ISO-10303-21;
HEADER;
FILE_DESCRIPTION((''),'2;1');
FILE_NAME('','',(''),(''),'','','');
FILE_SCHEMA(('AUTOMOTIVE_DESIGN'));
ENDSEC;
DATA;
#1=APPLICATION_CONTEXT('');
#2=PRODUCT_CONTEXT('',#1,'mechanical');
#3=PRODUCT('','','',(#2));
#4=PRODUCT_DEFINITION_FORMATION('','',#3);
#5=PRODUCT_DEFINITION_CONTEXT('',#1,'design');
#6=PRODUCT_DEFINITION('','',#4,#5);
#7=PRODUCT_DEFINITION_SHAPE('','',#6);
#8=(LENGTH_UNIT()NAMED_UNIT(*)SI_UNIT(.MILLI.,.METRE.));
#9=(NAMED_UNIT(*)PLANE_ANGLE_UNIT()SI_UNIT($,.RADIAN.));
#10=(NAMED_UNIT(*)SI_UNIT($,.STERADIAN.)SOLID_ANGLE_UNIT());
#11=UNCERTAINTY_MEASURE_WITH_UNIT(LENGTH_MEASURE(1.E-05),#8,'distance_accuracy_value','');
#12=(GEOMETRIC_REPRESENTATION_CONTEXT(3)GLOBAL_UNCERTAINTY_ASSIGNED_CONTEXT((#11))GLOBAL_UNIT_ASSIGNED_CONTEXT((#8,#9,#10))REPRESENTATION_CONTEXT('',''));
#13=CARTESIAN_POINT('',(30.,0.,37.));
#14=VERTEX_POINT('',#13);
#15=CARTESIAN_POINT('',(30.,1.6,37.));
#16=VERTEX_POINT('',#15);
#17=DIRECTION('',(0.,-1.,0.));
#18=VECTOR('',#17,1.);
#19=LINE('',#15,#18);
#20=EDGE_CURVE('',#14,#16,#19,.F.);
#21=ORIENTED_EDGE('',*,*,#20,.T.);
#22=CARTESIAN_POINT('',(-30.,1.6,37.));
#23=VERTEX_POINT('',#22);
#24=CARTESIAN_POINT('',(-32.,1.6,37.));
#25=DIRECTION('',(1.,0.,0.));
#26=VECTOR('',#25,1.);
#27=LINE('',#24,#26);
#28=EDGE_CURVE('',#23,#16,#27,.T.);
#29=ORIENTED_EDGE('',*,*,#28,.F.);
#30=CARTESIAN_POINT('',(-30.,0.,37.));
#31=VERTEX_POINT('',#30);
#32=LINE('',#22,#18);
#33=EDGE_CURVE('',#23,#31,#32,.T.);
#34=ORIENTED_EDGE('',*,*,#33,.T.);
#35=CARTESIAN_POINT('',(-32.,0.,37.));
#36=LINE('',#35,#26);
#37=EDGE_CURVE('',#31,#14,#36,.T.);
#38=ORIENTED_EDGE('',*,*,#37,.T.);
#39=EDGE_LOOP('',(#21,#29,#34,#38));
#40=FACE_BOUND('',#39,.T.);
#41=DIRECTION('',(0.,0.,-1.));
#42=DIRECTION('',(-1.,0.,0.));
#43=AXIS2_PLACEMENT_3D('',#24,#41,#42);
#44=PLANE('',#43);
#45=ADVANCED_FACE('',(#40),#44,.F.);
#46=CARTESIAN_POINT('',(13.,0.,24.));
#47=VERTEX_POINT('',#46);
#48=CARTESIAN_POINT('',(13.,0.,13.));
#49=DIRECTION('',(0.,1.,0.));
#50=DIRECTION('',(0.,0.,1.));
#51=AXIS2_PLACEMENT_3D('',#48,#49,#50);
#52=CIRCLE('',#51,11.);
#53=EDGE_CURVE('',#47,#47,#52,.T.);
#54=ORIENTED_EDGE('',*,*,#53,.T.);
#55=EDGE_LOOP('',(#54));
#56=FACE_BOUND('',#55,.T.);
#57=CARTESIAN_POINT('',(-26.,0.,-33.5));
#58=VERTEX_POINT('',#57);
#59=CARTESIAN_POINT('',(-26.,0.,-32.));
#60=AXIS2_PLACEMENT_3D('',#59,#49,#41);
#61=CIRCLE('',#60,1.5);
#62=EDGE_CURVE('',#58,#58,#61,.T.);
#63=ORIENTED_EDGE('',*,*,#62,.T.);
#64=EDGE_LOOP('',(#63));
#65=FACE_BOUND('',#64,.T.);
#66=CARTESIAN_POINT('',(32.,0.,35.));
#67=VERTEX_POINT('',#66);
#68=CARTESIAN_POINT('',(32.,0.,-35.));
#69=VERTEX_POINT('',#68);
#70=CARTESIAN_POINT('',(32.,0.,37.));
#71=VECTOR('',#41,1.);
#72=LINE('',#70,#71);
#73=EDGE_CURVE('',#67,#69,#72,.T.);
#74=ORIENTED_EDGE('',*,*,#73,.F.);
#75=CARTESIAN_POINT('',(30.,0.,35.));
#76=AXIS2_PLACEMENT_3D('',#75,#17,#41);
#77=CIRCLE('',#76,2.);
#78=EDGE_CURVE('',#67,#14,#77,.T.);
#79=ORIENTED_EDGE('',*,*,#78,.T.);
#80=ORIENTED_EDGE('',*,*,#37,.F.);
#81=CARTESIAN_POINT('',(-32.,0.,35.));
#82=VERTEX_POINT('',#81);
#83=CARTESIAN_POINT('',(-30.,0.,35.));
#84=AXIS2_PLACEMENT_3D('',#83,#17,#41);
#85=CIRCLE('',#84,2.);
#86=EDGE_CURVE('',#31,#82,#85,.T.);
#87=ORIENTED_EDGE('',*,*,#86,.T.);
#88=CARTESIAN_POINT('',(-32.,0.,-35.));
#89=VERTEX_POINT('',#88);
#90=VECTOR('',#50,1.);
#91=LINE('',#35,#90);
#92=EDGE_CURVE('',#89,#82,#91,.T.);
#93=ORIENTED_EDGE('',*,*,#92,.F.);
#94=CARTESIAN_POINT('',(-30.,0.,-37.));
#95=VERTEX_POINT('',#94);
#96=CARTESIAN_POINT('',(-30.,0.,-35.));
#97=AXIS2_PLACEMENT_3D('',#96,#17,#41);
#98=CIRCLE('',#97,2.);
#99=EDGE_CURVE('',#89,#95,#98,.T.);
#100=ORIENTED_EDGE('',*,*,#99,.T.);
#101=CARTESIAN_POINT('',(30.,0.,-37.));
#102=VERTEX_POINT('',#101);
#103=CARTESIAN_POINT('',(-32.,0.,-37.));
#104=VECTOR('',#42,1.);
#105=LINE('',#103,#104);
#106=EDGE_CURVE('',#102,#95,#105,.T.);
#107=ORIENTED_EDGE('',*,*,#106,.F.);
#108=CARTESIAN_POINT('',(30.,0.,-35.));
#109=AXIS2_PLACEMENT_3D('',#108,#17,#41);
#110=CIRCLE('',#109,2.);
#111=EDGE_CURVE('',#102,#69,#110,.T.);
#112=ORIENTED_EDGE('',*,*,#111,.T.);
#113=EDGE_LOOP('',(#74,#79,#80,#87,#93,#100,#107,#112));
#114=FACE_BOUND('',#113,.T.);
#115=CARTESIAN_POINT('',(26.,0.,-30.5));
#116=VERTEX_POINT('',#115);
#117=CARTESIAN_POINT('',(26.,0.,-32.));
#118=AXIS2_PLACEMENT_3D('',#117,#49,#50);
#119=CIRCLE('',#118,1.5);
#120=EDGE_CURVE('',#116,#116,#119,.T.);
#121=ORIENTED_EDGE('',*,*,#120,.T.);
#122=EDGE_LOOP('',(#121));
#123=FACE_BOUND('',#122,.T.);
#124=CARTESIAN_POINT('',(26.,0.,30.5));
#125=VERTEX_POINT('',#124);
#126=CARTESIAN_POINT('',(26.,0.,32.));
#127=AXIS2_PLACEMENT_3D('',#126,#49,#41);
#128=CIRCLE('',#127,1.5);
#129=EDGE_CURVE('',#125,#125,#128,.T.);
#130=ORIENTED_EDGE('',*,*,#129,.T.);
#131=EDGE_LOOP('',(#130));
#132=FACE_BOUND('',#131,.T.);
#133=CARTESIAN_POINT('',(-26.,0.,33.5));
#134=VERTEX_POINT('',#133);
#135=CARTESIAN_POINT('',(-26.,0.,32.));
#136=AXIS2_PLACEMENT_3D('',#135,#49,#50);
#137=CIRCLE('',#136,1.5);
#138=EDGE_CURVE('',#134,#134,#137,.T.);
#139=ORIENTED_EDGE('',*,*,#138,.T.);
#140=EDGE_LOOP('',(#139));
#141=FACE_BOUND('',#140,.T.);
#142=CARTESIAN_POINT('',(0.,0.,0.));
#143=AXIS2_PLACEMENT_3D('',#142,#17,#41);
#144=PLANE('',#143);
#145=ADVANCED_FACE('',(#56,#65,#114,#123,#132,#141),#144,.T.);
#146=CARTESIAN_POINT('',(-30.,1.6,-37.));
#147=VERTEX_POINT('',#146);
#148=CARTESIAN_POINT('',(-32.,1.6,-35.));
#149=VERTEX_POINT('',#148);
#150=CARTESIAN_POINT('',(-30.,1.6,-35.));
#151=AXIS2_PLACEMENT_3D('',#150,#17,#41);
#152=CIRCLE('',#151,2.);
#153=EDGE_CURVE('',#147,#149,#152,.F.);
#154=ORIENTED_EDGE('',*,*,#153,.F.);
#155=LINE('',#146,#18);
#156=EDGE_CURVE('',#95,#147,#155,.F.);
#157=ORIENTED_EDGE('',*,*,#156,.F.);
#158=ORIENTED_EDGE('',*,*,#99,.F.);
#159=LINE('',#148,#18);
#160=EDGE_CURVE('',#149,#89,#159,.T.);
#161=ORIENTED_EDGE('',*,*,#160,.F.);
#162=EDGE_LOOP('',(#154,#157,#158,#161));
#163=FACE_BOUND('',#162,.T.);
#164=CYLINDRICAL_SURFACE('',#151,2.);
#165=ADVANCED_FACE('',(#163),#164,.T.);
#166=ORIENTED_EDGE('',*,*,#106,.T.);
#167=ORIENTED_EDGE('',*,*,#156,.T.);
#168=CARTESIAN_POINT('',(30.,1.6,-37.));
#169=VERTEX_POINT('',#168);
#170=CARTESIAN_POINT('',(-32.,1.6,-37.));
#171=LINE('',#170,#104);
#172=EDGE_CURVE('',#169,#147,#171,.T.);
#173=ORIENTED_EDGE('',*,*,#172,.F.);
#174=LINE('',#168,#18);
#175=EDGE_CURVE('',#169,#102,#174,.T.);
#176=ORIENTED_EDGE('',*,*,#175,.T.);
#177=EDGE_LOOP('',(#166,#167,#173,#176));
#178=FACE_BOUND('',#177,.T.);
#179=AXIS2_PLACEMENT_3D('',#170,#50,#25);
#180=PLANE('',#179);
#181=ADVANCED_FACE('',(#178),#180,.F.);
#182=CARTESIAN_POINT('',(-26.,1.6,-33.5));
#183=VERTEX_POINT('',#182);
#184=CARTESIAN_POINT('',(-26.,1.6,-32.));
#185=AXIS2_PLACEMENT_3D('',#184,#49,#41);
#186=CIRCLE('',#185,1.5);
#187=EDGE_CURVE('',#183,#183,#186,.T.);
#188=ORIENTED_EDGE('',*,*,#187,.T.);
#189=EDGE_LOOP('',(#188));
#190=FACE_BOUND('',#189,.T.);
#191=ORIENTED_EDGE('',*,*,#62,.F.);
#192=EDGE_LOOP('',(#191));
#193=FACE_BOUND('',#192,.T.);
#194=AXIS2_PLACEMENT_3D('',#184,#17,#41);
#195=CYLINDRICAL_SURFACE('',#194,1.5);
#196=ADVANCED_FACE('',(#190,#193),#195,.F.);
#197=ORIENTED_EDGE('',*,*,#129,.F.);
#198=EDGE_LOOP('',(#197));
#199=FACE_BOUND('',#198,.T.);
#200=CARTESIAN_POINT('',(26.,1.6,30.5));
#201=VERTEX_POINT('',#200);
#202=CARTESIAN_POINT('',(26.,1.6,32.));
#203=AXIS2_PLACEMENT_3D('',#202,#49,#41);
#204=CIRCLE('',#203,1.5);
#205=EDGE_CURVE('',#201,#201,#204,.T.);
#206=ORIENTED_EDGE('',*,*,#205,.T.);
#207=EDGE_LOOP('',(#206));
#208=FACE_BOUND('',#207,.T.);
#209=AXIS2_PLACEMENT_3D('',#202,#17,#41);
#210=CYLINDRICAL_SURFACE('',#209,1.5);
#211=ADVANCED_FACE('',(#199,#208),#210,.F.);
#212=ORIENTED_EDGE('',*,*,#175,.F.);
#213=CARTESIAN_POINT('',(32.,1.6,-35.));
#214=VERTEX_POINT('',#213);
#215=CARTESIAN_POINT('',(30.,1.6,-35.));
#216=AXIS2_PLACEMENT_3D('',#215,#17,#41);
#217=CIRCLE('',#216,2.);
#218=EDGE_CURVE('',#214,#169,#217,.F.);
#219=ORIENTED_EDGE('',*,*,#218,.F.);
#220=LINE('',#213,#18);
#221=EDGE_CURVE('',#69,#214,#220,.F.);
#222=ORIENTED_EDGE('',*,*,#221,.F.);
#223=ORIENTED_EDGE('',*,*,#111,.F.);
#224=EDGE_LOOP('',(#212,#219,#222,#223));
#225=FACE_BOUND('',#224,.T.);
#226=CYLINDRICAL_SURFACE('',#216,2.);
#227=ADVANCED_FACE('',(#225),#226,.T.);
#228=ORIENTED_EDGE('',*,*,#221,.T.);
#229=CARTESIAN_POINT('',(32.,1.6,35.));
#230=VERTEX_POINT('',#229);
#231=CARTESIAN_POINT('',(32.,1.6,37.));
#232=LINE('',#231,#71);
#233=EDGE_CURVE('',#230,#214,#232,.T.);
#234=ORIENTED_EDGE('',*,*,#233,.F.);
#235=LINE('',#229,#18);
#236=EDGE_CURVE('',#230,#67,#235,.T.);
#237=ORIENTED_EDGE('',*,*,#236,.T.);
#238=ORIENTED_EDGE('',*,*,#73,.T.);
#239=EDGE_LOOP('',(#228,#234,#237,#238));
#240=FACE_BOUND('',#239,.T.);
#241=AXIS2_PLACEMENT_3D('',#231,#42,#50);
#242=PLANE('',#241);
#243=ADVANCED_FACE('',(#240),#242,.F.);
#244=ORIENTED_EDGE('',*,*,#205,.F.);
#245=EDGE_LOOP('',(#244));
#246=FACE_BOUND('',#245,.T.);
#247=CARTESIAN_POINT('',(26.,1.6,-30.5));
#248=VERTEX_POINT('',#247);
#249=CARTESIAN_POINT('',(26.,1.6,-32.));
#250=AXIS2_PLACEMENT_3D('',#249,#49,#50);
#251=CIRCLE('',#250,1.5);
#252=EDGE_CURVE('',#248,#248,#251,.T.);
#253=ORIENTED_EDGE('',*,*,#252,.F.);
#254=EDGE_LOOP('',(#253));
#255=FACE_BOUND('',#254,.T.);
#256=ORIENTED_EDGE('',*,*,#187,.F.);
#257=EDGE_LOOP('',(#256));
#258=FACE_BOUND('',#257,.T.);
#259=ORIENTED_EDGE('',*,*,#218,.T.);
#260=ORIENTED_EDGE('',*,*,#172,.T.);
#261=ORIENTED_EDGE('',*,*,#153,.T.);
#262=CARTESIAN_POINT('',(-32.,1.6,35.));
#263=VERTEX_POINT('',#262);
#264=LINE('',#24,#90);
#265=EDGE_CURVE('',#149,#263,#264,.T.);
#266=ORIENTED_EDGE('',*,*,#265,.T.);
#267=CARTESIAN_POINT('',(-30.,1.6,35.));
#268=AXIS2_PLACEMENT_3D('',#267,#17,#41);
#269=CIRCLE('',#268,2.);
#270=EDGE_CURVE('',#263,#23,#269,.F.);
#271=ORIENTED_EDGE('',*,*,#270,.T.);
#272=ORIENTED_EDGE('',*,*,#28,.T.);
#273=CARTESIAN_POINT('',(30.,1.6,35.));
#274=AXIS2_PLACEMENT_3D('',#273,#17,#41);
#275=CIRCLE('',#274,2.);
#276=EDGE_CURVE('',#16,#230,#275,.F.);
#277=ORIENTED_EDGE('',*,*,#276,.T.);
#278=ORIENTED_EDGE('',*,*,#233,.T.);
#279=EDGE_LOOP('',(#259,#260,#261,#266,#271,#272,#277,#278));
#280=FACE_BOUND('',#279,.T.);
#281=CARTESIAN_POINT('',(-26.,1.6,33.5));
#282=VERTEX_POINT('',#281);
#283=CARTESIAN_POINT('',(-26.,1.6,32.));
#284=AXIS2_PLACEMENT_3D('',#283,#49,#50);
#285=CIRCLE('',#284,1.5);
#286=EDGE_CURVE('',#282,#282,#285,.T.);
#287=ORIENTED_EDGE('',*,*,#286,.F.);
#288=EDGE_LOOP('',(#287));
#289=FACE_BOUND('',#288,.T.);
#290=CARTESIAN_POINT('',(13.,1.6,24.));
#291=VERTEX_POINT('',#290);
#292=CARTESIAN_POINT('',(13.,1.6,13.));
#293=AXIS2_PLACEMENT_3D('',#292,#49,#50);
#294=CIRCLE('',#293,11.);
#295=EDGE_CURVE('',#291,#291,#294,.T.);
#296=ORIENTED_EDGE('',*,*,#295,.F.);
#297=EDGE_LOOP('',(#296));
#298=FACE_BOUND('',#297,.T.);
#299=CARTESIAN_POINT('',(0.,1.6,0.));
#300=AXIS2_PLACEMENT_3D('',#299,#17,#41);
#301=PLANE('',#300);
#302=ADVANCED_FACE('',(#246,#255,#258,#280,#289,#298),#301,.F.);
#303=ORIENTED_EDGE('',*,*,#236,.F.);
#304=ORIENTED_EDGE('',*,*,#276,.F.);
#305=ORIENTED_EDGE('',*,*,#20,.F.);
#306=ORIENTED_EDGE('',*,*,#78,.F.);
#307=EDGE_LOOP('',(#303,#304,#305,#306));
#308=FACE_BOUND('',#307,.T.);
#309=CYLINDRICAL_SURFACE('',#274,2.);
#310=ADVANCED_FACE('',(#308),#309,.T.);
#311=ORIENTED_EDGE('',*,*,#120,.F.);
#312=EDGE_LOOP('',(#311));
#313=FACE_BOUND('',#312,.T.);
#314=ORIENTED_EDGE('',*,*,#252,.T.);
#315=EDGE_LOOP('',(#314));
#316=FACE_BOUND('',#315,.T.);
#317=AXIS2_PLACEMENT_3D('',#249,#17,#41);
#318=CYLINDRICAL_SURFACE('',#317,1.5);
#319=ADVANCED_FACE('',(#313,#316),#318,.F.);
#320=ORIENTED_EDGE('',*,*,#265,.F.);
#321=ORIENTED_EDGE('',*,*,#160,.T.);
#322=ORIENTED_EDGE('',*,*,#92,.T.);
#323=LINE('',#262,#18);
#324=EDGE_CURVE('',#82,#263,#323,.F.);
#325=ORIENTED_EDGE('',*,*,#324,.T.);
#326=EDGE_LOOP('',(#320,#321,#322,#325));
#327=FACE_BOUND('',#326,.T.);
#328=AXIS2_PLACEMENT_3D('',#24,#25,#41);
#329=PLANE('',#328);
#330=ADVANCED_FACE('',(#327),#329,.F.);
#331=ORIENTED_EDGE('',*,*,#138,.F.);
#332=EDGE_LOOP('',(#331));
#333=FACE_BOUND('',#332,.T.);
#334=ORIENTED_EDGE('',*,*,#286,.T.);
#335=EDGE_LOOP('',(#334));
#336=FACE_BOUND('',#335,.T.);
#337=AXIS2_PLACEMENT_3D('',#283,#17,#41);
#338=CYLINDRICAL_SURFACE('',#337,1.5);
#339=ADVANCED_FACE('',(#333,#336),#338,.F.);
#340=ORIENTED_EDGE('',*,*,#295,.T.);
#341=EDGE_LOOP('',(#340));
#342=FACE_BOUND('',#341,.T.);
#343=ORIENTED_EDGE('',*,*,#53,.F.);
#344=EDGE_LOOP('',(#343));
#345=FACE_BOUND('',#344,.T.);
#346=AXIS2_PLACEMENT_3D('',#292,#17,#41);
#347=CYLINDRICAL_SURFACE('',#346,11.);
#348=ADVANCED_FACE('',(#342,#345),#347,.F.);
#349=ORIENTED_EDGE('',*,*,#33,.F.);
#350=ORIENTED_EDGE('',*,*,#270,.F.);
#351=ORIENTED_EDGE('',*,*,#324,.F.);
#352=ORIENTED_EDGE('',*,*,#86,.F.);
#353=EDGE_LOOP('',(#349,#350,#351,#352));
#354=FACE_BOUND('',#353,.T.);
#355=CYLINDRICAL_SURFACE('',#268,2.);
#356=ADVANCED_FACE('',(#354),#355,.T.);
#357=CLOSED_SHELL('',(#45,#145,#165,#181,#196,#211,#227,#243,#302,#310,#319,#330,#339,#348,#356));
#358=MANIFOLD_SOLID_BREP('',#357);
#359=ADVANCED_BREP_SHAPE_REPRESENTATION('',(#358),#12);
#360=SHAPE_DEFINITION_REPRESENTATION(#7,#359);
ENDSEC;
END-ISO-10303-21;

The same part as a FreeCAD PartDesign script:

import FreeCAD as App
import Part
import Sketcher
from FreeCAD import Vector
Q = App.Units.Quantity


def edges_at(feature, points):
    """Names of the edges that pass closest to the given points."""
    edges = feature.Shape.Edges
    near = lambda p: min(range(len(edges)), key=lambda i: edges[i].distToShape(Part.Vertex(*p))[0])
    return sorted({f"Edge{near(p) + 1}" for p in points})

doc = App.newDocument("Part")
params = doc.addObject("Spreadsheet::Sheet", "Params")
for row, (alias, value) in enumerate([
    ("sketch1_diameter", "3 mm"),
    ("sketch1_diameter2", "22 mm"),
    ("sketch1_width", "64 mm"),
    ("sketch1_height", "74 mm"),
    ("pad1_length", "1.6 mm"),
    ("fillet_radius", "2 mm"),
], start=1):
    params.set(f"A{row}", alias)
    params.set(f"B{row}", "=" + value)
    params.setAlias(f"B{row}", alias)

body = doc.addObject("PartDesign::Body", "Body")

# Sketch on XZ plane
sketch1 = body.newObject("Sketcher::SketchObject", "Sketch")
sketch1.AttachmentSupport = (doc.getObject("XZ_Plane"), [""])
sketch1.MapMode = "FlatFace"
sketch1.addGeometry(Part.LineSegment(Vector(-32, -37, 0), Vector(-32, 37, 0)), False)
sketch1.addGeometry(Part.LineSegment(Vector(-32, 37, 0), Vector(32, 37, 0)), False)
sketch1.addGeometry(Part.LineSegment(Vector(32, 37, 0), Vector(32, -37, 0)), False)
sketch1.addGeometry(Part.LineSegment(Vector(32, -37, 0), Vector(-32, -37, 0)), False)
sketch1.addGeometry(Part.Circle(Vector(-26, 32, 0), Vector(0, 0, 1), 1.5), False)
sketch1.addGeometry(Part.Circle(Vector(26, 32, 0), Vector(0, 0, 1), 1.5), False)
sketch1.addGeometry(Part.Circle(Vector(13, 13, 0), Vector(0, 0, 1), 11), False)
sketch1.addGeometry(Part.Circle(Vector(-26, -32, 0), Vector(0, 0, 1), 1.5), False)
sketch1.addGeometry(Part.Circle(Vector(26, -32, 0), Vector(0, 0, 1), 1.5), False)
sketch1.addConstraint(Sketcher.Constraint("Coincident", 0, 2, 1, 1))
sketch1.addConstraint(Sketcher.Constraint("Coincident", 1, 2, 2, 1))
sketch1.addConstraint(Sketcher.Constraint("Coincident", 2, 2, 3, 1))
sketch1.addConstraint(Sketcher.Constraint("Coincident", 3, 2, 0, 1))
sketch1.addConstraint(Sketcher.Constraint("Vertical", 0))
sketch1.addConstraint(Sketcher.Constraint("Horizontal", 1))
sketch1.addConstraint(Sketcher.Constraint("Vertical", 2))
sketch1.addConstraint(Sketcher.Constraint("Horizontal", 3))
sketch1.addConstraint(Sketcher.Constraint("Equal", 4, 5))
sketch1.addConstraint(Sketcher.Constraint("Equal", 5, 7))
sketch1.addConstraint(Sketcher.Constraint("Equal", 7, 8))
sketch1.addConstraint(Sketcher.Constraint("Symmetric", 5, 3, 7, 3, -1, 1))
sketch1.addConstraint(Sketcher.Constraint("Symmetric", 4, 3, 8, 3, -1, 1))
sketch1.addConstraint(Sketcher.Constraint("Symmetric", 0, 2, 2, 2, -1, 1))
sketch1.addConstraint(Sketcher.Constraint("Symmetric", 4, 3, 5, 3, -2))
sketch1.addConstraint(Sketcher.Constraint("Diameter", 4, Q("3 mm")))
sketch1.addConstraint(Sketcher.Constraint("Diameter", 6, Q("22 mm")))
sketch1.addConstraint(Sketcher.Constraint("DistanceX", 1, 1, 1, 2, Q("64 mm")))
sketch1.addConstraint(Sketcher.Constraint("DistanceY", 0, 1, 0, 2, Q("74 mm")))
sketch1.addConstraint(Sketcher.Constraint("DistanceX", 4, 3, -1, 1, Q("26 mm")))
sketch1.addConstraint(Sketcher.Constraint("DistanceY", -1, 1, 4, 3, Q("32 mm")))
sketch1.addConstraint(Sketcher.Constraint("DistanceX", -1, 1, 6, 3, Q("13 mm")))
sketch1.addConstraint(Sketcher.Constraint("DistanceY", -1, 1, 6, 3, Q("13 mm")))
sketch1.setExpression("Constraints[15]", "Params.sketch1_diameter")
sketch1.setExpression("Constraints[16]", "Params.sketch1_diameter2")
sketch1.setExpression("Constraints[17]", "Params.sketch1_width")
sketch1.setExpression("Constraints[18]", "Params.sketch1_height")
pad1 = body.newObject("PartDesign::Pad", "Pad")
pad1.Profile = sketch1
pad1.setExpression("Length", "Params.pad1_length")
pad1.Reversed = True
doc.recompute()

fillet = body.newObject("PartDesign::Fillet", "Fillet")
fillet.Base = (pad1, edges_at(pad1, [
    (32, 0.8, 37),
    (-32, 0.8, 37),
    (-32, 0.8, -37),
    (32, 0.8, -37),
]))
fillet.setExpression("Radius", "Params.fillet_radius")

doc.recompute()
